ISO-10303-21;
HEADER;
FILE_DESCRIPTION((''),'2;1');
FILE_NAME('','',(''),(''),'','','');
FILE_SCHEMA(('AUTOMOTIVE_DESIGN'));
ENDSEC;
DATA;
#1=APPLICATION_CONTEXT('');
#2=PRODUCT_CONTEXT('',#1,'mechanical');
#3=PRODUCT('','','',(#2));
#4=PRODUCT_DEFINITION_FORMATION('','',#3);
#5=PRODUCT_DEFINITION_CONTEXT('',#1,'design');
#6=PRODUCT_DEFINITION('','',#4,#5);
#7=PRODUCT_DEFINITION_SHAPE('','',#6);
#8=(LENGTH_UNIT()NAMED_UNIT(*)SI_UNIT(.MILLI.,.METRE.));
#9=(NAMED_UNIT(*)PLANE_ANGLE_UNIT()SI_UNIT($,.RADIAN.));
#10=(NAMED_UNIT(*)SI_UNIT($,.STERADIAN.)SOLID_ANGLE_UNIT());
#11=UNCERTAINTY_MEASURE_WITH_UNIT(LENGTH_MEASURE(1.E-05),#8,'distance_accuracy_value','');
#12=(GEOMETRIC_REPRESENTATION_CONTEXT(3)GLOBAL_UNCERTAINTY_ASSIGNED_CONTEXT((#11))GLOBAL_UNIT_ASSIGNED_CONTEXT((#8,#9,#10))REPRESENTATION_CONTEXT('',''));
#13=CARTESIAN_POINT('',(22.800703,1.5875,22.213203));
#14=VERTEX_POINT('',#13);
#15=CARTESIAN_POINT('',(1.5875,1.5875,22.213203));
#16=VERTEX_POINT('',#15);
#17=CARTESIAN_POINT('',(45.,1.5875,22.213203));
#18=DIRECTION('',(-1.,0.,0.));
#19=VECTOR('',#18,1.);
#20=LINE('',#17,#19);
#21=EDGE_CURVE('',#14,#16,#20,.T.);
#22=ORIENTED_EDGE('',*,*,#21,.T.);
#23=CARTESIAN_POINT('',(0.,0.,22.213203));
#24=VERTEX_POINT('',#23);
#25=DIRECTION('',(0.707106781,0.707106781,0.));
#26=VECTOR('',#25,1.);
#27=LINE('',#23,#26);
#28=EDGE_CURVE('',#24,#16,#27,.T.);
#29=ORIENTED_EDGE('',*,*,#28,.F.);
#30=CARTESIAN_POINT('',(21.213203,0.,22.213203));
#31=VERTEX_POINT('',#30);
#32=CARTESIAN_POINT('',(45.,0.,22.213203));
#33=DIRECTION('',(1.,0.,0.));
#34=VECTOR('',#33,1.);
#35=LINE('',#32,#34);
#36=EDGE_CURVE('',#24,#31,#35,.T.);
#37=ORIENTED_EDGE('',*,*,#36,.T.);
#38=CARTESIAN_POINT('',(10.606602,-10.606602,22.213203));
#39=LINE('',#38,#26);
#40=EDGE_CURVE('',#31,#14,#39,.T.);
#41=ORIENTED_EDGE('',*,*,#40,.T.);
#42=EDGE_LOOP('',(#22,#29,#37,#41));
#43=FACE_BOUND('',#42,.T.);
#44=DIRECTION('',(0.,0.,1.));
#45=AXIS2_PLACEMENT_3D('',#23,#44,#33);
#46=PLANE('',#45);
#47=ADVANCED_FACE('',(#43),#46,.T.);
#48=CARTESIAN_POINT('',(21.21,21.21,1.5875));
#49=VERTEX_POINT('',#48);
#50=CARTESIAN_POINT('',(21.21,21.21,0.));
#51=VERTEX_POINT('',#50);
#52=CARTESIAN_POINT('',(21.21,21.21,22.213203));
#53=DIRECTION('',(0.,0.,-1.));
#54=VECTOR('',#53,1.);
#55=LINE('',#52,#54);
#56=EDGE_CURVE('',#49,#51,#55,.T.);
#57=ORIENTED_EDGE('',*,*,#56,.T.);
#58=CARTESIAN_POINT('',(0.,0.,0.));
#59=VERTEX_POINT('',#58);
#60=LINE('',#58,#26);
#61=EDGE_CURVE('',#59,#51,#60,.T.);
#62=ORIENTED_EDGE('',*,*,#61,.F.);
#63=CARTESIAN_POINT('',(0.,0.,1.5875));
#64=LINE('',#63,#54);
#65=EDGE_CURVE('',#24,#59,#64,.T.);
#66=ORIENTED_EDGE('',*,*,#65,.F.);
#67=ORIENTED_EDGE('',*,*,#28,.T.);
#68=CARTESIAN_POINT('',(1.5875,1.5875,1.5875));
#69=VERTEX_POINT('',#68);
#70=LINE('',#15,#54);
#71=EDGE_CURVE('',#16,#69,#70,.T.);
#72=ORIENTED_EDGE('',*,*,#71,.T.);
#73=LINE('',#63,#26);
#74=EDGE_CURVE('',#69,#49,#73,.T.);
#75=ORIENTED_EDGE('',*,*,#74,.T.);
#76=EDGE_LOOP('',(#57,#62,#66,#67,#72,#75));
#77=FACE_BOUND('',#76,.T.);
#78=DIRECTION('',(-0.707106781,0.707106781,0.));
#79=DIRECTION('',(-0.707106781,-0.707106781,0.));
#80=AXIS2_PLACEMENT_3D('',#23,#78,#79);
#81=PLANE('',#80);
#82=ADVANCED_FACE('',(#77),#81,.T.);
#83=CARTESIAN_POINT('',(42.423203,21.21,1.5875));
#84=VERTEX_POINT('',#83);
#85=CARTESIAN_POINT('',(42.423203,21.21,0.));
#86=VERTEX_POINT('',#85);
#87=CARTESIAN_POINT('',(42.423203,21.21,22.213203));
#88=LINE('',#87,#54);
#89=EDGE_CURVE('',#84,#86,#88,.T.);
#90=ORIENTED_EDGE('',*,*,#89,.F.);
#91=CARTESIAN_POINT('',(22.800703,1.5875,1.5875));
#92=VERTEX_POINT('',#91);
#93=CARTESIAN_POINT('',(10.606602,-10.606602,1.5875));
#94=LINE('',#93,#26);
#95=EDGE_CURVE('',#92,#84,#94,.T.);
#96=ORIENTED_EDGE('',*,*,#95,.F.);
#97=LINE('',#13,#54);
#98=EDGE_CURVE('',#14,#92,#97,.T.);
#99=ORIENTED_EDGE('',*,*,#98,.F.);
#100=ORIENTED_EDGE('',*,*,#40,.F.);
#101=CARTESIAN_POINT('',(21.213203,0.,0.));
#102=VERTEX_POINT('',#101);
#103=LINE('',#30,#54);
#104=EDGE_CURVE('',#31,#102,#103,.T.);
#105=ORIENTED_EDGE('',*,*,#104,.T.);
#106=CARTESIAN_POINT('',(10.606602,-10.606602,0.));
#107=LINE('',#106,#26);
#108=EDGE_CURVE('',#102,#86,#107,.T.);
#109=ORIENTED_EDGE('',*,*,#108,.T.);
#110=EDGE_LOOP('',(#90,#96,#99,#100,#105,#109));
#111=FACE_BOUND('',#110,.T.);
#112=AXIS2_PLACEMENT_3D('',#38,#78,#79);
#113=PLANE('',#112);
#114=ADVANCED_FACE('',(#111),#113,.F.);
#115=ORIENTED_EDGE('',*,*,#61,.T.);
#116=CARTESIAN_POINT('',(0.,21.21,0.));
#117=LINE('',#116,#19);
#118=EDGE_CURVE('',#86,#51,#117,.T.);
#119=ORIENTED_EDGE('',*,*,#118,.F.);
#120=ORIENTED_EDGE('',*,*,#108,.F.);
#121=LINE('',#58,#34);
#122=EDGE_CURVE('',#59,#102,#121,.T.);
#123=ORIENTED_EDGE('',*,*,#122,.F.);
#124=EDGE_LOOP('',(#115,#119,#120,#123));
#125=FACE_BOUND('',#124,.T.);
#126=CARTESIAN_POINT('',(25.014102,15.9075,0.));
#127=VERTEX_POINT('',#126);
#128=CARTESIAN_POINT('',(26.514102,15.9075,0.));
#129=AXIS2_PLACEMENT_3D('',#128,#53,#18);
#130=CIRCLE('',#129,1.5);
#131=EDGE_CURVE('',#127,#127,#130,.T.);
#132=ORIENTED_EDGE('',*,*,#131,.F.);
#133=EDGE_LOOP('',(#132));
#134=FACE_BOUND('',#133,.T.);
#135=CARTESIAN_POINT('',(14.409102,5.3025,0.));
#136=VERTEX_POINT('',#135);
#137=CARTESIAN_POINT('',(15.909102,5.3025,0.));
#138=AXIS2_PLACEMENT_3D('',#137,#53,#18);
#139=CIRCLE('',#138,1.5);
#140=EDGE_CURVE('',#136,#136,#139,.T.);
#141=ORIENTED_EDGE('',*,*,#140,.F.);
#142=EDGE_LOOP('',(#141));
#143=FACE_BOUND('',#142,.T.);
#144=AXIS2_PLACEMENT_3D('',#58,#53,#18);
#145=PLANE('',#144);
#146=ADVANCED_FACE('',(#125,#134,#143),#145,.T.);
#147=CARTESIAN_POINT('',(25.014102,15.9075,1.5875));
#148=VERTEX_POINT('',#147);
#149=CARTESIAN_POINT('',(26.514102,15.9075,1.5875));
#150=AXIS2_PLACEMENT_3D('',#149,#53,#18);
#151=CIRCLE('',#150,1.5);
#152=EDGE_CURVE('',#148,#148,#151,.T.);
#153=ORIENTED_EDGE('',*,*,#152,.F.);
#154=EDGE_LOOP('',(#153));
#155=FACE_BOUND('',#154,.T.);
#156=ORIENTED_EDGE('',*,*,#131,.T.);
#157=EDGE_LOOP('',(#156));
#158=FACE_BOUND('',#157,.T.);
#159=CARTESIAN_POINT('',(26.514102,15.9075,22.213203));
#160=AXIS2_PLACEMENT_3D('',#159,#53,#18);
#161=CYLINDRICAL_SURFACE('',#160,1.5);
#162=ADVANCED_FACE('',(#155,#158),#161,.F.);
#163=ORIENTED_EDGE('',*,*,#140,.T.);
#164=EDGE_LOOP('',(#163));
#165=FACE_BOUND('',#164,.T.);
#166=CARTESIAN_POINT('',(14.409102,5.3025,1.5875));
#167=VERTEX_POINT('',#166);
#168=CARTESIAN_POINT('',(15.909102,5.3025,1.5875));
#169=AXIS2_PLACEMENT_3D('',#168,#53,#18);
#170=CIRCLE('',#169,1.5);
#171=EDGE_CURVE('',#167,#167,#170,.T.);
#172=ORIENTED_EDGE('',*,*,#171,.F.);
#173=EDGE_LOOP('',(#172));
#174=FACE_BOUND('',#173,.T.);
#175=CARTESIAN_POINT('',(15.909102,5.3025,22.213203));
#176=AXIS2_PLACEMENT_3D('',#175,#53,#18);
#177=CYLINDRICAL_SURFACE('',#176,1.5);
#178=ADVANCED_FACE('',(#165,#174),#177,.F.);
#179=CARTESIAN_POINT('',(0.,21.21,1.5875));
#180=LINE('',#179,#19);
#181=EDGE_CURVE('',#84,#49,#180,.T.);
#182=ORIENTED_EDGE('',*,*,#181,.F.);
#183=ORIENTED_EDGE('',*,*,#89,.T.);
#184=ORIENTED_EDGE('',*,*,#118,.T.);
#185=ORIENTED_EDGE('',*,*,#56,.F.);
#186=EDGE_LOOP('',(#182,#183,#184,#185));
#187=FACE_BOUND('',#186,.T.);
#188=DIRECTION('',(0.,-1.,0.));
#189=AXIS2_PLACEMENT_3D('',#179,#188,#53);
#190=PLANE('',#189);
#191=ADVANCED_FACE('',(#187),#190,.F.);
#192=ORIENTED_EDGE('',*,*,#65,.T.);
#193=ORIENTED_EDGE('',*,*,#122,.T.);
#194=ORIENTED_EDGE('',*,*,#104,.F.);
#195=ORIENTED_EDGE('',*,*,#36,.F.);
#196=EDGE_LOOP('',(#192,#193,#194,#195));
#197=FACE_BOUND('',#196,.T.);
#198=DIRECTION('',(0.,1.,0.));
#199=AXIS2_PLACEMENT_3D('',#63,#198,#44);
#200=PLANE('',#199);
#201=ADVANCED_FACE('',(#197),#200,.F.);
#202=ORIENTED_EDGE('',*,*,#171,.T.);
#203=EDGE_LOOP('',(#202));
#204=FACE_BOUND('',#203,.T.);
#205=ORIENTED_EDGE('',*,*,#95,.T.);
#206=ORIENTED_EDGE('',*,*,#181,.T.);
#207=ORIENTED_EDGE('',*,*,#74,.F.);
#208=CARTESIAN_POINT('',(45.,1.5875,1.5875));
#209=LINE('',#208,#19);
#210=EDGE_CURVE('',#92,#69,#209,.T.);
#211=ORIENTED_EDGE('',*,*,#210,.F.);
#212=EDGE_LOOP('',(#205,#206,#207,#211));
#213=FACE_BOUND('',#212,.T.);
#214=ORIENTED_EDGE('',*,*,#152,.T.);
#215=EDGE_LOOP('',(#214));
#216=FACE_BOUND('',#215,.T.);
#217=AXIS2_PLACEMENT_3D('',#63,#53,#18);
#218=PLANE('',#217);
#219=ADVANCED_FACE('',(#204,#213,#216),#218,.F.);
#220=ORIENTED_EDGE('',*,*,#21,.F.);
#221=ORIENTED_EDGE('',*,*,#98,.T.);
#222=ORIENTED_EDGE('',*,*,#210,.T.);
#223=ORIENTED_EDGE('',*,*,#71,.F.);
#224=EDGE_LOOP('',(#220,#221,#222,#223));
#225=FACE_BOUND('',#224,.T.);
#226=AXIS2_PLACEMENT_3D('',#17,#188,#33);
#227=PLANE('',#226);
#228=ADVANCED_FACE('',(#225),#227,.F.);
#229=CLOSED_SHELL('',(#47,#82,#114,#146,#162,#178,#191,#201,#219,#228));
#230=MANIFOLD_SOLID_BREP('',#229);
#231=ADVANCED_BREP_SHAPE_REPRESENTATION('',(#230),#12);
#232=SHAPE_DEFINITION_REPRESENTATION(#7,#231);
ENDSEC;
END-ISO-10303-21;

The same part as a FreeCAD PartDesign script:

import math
import FreeCAD as App
import Part
import Sketcher
Q = App.Units.Quantity


def add_polygon(sketch, points):
    """Adds a closed chain of lines whose ends are joined by coincident constraints."""
    first, n = sketch.GeometryCount, len(points)
    for a, b in zip(points, points[1:] + points[:1]):
        sketch.addGeometry(Part.LineSegment(App.Vector(*a, 0), App.Vector(*b, 0)), False)
    for i in range(n):
        sketch.addConstraint(Sketcher.Constraint("Coincident", first + i, 2, first + (i + 1) % n, 1))

doc = App.newDocument("Part")
body = doc.addObject("PartDesign::Body", "Body")

# Sketch on XY plane
sketch1 = body.newObject("Sketcher::SketchObject", "Sketch")
sketch1.AttachmentSupport = (doc.getObject("XY_Plane"), [""])
sketch1.MapMode = "FlatFace"
add_polygon(sketch1, [(0, 21), (0, 0), (45, 0), (45, 21)])  # lines 0-3
sketch1.addConstraint([
    Sketcher.Constraint("Vertical", 0),
    Sketcher.Constraint("Horizontal", 1),
    Sketcher.Constraint("Vertical", 2),
    Sketcher.Constraint("Horizontal", 3),
    Sketcher.Constraint("Coincident", 0, 2, -1, 1),
    Sketcher.Constraint("DistanceX", 1, 1, 1, 2, Q("45 mm")),
    Sketcher.Constraint("DistanceY", 0, 2, 0, 1, Q("21.21 mm")),
])
pad1 = body.newObject("PartDesign::Pad", "Pad")
pad1.Profile = sketch1
pad1.Length = 1.5875

# Sketch on XY plane
sketch2 = body.newObject("Sketcher::SketchObject", "Sketch001")
sketch2.AttachmentSupport = (doc.getObject("XY_Plane"), [""])
sketch2.MapMode = "FlatFace"
sketch2.AttachmentOffset = App.Placement(App.Vector(0, 0, 1.5875), App.Rotation())
add_polygon(sketch2, [(0, 1.6), (0, 0), (45, 0), (45, 1.6)])  # lines 0-3
sketch2.addConstraint([
    Sketcher.Constraint("Vertical", 0),
    Sketcher.Constraint("Horizontal", 1),
    Sketcher.Constraint("Vertical", 2),
    Sketcher.Constraint("Horizontal", 3),
    Sketcher.Constraint("Coincident", 0, 2, -1, 1),
    Sketcher.Constraint("DistanceX", 1, 1, 1, 2, Q("45 mm")),
    Sketcher.Constraint("DistanceY", 0, 2, 0, 1, Q("1.5875 mm")),
])
pad2 = body.newObject("PartDesign::Pad", "Pad001")
pad2.Profile = sketch2
pad2.Length = 20.625703

# Sketch on XY plane
sketch3 = body.newObject("Sketcher::SketchObject", "Sketch002")
sketch3.AttachmentSupport = (doc.getObject("XY_Plane"), [""])
sketch3.MapMode = "FlatFace"
add_polygon(sketch3, [(21.2, 21.2), (0, 0), (0, 21.2)])  # lines 0-2
add_polygon(sketch3, [(45, 0), (21.2, 0), (42.4, 21.2), (45, 21.2)])  # lines 3-6
sketch3.addConstraint([
    Sketcher.Constraint("Vertical", 1),
    Sketcher.Constraint("Horizontal", 2),
    Sketcher.Constraint("Horizontal", 3),
    Sketcher.Constraint("Horizontal", 5),
    Sketcher.Constraint("Vertical", 6),
    Sketcher.Constraint("Coincident", 0, 2, -1, 1),
    Sketcher.Constraint("PointOnObject", 3, 2, -1),
    Sketcher.Constraint("Parallel", 0, 4),
    Sketcher.Constraint("Horizontal", 2, 2, 4, 2),
    Sketcher.Constraint("Equal", 2, 1),
    Sketcher.Constraint("DistanceX", -1, 1, 5, 2, Q("45 mm")),
    Sketcher.Constraint("DistanceX", 2, 1, 2, 2, Q("21.21 mm")),
    Sketcher.Constraint("DistanceX", 3, 2, 3, 1, Q("23.786797 mm")),
])
pocket1 = body.newObject("PartDesign::Pocket", "Pocket")
pocket1.Profile = sketch3
pocket1.Type = "ThroughAll"
pocket1.Reversed = True

# Sketch on XY plane
sketch4 = body.newObject("Sketcher::SketchObject", "Sketch003")
sketch4.AttachmentSupport = (doc.getObject("XY_Plane"), [""])
sketch4.MapMode = "FlatFace"
sketch4.addGeometry([
    Part.ArcOfCircle(Part.Circle(App.Vector(15.9, 5.3, 0), App.Vector(0, 0, 1), 1.5), math.radians(45), math.radians(180)),  # 0
    Part.ArcOfCircle(Part.Circle(App.Vector(15.9, 5.3, 0), App.Vector(0, 0, 1), 1.5), math.radians(-135), math.radians(45)),  # 1
    Part.ArcOfCircle(Part.Circle(App.Vector(15.9, 5.3, 0), App.Vector(0, 0, 1), 1.5), math.radians(180), math.radians(225)),  # 2
    Part.ArcOfCircle(Part.Circle(App.Vector(26.5, 15.9, 0), App.Vector(0, 0, 1), 1.5), math.radians(45), math.radians(180)),  # 3
    Part.ArcOfCircle(Part.Circle(App.Vector(26.5, 15.9, 0), App.Vector(0, 0, 1), 1.5), math.radians(-135), math.radians(45)),  # 4
    Part.ArcOfCircle(Part.Circle(App.Vector(26.5, 15.9, 0), App.Vector(0, 0, 1), 1.5), math.radians(180), math.radians(225)),  # 5
], False)
sketch4.addConstraint([
    Sketcher.Constraint("Tangent", 0, 1, 1, 2),
    Sketcher.Constraint("Tangent", 1, 1, 2, 2),
    Sketcher.Constraint("Tangent", 2, 1, 0, 2),
    Sketcher.Constraint("Tangent", 3, 1, 4, 2),
    Sketcher.Constraint("Tangent", 4, 1, 5, 2),
    Sketcher.Constraint("Tangent", 5, 1, 3, 2),
    Sketcher.Constraint("Equal", 2, 3),
    Sketcher.Constraint("Horizontal", 1, 3, 2, 1),
    Sketcher.Constraint("Horizontal", 4, 3, 5, 1),
    Sketcher.Constraint("Radius", 0, Q("1.5 mm")),
    Sketcher.Constraint("DistanceX", 0, 3, 3, 3, Q("10.605 mm")),
    Sketcher.Constraint("DistanceY", 0, 3, 3, 3, Q("10.605 mm")),
    Sketcher.Constraint("DistanceX", 0, 1, 3, 1, Q("10.605 mm")),
    Sketcher.Constraint("DistanceX", -1, 1, 0, 3, Q("15.909102 mm")),
    Sketcher.Constraint("DistanceY", -1, 1, 0, 3, Q("5.3025 mm")),
    Sketcher.Constraint("DistanceX", -1, 1, 0, 1, Q("16.969762 mm")),
    Sketcher.Constraint("DistanceX", -1, 1, 1, 1, Q("14.848442 mm")),
    Sketcher.Constraint("DistanceX", -1, 1, 4, 1, Q("25.453442 mm")),
])
pocket2 = body.newObject("PartDesign::Pocket", "Pocket001")
pocket2.Profile = sketch4
pocket2.Type = "ThroughAll"
pocket2.Reversed = True

doc.recompute()
